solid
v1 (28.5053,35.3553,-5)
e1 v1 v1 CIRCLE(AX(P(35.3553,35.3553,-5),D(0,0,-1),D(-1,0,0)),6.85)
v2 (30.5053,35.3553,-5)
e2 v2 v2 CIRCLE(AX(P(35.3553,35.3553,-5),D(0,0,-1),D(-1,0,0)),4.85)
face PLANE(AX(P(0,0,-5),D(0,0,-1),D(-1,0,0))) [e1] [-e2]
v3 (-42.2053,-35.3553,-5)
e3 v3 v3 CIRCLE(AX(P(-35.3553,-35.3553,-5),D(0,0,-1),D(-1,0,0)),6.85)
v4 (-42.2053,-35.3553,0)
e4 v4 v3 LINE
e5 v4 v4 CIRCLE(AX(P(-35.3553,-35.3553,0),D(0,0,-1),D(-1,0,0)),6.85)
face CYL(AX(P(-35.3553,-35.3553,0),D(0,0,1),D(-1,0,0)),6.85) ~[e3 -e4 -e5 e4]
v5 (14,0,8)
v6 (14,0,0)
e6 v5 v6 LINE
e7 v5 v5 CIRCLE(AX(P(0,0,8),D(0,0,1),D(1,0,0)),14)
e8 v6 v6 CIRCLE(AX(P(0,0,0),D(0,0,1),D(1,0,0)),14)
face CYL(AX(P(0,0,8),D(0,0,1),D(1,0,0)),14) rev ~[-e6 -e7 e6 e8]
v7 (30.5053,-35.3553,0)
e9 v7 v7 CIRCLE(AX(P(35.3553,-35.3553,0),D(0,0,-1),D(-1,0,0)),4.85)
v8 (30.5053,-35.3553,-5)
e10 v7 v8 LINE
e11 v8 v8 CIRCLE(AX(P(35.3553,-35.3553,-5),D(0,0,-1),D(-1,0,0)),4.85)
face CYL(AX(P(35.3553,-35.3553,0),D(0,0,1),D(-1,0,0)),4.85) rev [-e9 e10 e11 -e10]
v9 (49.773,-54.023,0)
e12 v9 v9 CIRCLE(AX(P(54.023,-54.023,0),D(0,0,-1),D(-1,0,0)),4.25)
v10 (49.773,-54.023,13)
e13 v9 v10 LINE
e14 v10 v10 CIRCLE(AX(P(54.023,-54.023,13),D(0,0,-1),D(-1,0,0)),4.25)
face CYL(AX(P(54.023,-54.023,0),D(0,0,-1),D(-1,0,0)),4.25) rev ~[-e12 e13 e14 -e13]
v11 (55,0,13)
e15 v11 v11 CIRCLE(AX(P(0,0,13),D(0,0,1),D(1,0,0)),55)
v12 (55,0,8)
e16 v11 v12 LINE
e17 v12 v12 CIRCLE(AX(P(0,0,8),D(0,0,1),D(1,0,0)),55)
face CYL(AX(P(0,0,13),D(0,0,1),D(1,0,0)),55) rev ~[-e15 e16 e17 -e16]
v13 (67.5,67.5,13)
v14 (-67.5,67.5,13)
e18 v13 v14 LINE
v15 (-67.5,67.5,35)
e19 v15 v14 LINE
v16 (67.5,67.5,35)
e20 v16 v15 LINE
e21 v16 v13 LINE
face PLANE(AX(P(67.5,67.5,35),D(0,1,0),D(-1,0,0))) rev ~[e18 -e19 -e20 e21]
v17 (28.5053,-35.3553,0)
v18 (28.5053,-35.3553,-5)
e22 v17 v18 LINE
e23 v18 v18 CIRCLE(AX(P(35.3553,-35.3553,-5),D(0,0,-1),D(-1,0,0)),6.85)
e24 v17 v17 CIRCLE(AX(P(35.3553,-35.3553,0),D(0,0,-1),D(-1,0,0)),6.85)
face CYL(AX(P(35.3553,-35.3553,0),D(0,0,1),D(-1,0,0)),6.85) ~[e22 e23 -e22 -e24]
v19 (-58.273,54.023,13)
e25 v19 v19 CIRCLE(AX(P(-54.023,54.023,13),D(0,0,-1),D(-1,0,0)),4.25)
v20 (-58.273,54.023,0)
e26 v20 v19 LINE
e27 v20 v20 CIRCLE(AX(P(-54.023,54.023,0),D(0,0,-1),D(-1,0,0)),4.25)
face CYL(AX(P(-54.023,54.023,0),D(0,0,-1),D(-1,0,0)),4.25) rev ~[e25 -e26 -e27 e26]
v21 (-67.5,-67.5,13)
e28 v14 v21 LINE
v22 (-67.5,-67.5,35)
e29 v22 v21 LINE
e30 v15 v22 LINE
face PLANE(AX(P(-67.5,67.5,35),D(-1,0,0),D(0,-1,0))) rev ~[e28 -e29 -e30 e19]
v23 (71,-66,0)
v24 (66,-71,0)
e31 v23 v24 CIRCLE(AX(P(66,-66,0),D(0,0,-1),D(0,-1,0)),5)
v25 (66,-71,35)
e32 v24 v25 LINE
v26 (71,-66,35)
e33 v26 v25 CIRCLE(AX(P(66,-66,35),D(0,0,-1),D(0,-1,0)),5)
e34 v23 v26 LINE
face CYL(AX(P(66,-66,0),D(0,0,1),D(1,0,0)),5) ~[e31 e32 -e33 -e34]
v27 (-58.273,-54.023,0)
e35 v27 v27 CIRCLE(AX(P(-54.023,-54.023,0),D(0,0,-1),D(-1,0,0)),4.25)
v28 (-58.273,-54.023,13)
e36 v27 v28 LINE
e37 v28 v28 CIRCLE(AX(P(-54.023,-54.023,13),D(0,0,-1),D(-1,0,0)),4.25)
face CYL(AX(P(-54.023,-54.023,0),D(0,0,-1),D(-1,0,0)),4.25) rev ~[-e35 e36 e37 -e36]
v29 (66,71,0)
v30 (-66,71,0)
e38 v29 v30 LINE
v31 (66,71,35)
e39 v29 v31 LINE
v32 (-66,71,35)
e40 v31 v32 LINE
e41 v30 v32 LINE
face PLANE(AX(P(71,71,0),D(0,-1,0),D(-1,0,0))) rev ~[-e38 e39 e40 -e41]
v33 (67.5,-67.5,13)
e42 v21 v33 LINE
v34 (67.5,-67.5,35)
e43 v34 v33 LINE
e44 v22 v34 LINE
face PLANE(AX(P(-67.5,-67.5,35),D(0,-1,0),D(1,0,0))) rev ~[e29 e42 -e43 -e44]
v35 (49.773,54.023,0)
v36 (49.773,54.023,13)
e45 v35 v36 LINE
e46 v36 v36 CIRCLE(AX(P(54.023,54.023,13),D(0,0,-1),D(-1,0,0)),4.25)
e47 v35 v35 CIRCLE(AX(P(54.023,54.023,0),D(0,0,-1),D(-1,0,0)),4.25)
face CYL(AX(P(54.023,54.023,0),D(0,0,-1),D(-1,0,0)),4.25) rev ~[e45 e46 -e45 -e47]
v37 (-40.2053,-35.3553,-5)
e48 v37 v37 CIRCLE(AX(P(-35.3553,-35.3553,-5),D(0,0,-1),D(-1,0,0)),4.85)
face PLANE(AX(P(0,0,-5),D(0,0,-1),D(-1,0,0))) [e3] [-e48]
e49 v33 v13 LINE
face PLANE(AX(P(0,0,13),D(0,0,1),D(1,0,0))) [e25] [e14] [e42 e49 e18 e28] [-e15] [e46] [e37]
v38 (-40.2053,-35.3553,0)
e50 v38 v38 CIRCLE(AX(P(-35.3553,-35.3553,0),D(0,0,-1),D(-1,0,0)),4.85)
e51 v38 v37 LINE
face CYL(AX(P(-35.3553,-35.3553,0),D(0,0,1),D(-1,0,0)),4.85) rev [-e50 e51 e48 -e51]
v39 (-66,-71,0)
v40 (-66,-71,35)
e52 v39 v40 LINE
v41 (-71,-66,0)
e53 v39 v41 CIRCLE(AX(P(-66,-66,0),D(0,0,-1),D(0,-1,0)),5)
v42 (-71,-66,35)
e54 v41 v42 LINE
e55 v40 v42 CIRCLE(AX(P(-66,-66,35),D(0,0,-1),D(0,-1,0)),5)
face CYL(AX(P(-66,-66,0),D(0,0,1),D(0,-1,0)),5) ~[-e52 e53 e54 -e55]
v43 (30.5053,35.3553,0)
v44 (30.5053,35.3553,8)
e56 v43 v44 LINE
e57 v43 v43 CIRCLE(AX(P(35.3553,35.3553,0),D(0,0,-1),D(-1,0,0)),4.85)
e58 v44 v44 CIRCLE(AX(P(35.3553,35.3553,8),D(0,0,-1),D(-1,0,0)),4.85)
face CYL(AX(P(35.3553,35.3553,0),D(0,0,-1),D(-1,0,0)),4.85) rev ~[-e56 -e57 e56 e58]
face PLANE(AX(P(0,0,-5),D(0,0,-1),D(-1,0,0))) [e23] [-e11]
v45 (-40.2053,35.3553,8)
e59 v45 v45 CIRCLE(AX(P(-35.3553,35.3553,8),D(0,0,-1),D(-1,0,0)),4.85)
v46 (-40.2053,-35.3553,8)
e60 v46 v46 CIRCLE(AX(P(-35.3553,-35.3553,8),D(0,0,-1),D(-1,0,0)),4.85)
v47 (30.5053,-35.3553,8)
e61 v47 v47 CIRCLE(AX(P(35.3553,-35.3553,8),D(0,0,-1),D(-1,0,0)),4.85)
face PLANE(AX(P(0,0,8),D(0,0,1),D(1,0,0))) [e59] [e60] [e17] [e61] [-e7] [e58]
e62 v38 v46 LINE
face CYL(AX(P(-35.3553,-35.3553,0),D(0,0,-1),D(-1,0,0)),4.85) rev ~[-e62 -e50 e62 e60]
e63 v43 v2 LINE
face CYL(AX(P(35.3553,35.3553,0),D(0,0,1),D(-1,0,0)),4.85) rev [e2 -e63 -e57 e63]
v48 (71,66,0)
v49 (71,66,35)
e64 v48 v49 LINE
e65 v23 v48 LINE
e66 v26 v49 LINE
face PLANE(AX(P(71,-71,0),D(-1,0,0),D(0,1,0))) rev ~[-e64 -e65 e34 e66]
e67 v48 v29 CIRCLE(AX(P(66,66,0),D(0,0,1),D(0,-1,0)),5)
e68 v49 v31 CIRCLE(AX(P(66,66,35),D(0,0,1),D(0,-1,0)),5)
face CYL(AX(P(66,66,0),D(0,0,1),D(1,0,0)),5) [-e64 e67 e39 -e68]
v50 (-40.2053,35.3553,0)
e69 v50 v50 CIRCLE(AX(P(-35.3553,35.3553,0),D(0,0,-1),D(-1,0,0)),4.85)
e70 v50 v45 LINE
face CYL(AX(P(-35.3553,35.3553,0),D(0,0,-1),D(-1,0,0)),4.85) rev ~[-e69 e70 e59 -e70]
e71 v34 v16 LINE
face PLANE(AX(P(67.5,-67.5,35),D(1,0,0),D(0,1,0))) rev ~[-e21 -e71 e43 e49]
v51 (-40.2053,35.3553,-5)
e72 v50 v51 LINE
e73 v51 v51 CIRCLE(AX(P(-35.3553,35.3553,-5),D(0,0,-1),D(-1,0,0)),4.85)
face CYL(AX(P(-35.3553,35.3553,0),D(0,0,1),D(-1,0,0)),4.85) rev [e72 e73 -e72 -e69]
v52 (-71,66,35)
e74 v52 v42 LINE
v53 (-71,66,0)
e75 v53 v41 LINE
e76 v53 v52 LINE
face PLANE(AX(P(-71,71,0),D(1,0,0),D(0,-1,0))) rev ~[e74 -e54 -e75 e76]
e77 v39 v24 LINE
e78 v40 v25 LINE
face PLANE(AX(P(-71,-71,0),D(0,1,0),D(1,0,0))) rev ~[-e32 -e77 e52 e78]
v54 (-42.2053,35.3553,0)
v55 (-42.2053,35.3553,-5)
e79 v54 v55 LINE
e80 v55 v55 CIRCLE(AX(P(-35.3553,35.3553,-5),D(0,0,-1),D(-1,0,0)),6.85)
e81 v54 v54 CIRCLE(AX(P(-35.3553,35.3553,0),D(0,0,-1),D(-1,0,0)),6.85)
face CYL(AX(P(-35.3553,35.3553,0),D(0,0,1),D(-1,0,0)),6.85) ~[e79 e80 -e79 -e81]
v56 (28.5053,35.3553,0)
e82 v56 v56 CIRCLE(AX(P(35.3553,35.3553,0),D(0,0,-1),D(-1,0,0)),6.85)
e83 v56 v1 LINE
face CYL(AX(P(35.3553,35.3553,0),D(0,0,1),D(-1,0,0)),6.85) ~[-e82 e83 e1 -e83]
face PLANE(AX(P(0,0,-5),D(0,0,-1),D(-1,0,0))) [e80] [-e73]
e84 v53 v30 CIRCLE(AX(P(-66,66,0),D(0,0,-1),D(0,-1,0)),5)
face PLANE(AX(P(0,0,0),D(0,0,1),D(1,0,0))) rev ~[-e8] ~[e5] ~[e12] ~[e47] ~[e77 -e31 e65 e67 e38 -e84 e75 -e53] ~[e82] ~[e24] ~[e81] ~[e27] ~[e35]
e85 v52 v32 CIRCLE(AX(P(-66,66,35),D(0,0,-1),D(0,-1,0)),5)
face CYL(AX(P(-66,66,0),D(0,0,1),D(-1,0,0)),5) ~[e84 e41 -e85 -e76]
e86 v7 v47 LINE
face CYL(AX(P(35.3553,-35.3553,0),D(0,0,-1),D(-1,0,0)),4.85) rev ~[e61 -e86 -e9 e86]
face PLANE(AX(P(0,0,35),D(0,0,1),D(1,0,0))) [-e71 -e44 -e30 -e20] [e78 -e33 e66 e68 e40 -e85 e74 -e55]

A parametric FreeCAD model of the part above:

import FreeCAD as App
import Part
import Sketcher


def edges_at(feature, points):
    """Names of the edges that pass closest to the given points."""
    edges = feature.Shape.Edges
    near = lambda p: min(range(len(edges)), key=lambda i: edges[i].distToShape(Part.Vertex(*p))[0])
    return sorted({f"Edge{near(p) + 1}" for p in points})

doc = App.newDocument("Part")
body = doc.addObject("PartDesign::Body", "Body")

sketch1 = body.newObject("Sketcher::SketchObject", "Sketch")
sketch1.AttachmentSupport = (doc.getObject("XY_Plane"), [""])
sketch1.MapMode = "FlatFace"
sketch1.addGeometry([
    Part.LineSegment(App.Vector(71, -71, 0), App.Vector(71, 71, 0)),
    Part.LineSegment(App.Vector(71, 71, 0), App.Vector(-71, 71, 0)),
    Part.LineSegment(App.Vector(-71, 71, 0), App.Vector(-71, -71, 0)),
    Part.LineSegment(App.Vector(-71, -71, 0), App.Vector(71, -71, 0)),
], False)
sketch1.addConstraint([
    Sketcher.Constraint("Coincident", 0, 2, 1, 1),
    Sketcher.Constraint("Coincident", 1, 2, 2, 1),
    Sketcher.Constraint("Coincident", 2, 2, 3, 1),
    Sketcher.Constraint("Coincident", 3, 2, 0, 1),
    Sketcher.Constraint("Vertical", 0),
    Sketcher.Constraint("Horizontal", 1),
    Sketcher.Constraint("Vertical", 2),
    Sketcher.Constraint("Horizontal", 3),
    Sketcher.Constraint("Symmetric", 0, 2, 2, 2, -1, 1),
    Sketcher.Constraint("Equal", 3, 0),
    Sketcher.Constraint("DistanceX", 1, 2, 1, 1, 142.0),
])
pad1 = body.newObject("PartDesign::Pad", "Pad")
pad1.Profile = sketch1
pad1.Length = 35
doc.recompute()

fillet = body.newObject("PartDesign::Fillet", "Fillet")
fillet.Base = (pad1, edges_at(pad1, [
    (-71, -71, 17.5),
    (-71, 71, 17.5),
    (71, 71, 17.5),
    (71, -71, 17.5),
]))
fillet.Radius = 5

sketch2 = body.newObject("Sketcher::SketchObject", "Sketch001")
sketch2.AttachmentSupport = (doc.getObject("XY_Plane"), [""])
sketch2.MapMode = "FlatFace"
sketch2.AttachmentOffset = App.Placement(App.Vector(0, 0, 35), App.Rotation())
sketch2.addGeometry([
    Part.LineSegment(App.Vector(-67.5, 67.5, 0), App.Vector(-67.5, -67.5, 0)),
    Part.LineSegment(App.Vector(-67.5, -67.5, 0), App.Vector(67.5, -67.5, 0)),
    Part.LineSegment(App.Vector(67.5, -67.5, 0), App.Vector(67.5, 67.5, 0)),
    Part.LineSegment(App.Vector(67.5, 67.5, 0), App.Vector(-67.5, 67.5, 0)),
], False)
sketch2.addConstraint([
    Sketcher.Constraint("Coincident", 0, 2, 1, 1),
    Sketcher.Constraint("Coincident", 1, 2, 2, 1),
    Sketcher.Constraint("Coincident", 2, 2, 3, 1),
    Sketcher.Constraint("Coincident", 3, 2, 0, 1),
    Sketcher.Constraint("Vertical", 0),
    Sketcher.Constraint("Horizontal", 1),
    Sketcher.Constraint("Vertical", 2),
    Sketcher.Constraint("Horizontal", 3),
    Sketcher.Constraint("Symmetric", 0, 2, 2, 2, -1, 1),
    Sketcher.Constraint("Equal", 3, 0),
    Sketcher.Constraint("DistanceX", 1, 1, 1, 2, 135.0),
])
pocket1 = body.newObject("PartDesign::Pocket", "Pocket")
pocket1.Profile = sketch2
pocket1.Length = 22

sketch3 = body.newObject("Sketcher::SketchObject", "Sketch002")
sketch3.AttachmentSupport = (doc.getObject("XY_Plane"), [""])
sketch3.MapMode = "FlatFace"
sketch3.AttachmentOffset = App.Placement(App.Vector(0, 0, 13), App.Rotation())
sketch3.addGeometry(Part.Circle(App.Vector(0, 0, 0), App.Vector(0, 0, 1), 55), False)
sketch3.addConstraint([
    Sketcher.Constraint("Coincident", 0, 3, -1, 1),
    Sketcher.Constraint("Diameter", 0, 110.0),
])
pocket2 = body.newObject("PartDesign::Pocket", "Pocket001")
pocket2.Profile = sketch3
pocket2.Length = 5

sketch4 = body.newObject("Sketcher::SketchObject", "Sketch003")
sketch4.AttachmentSupport = (doc.getObject("XY_Plane"), [""])
sketch4.MapMode = "FlatFace"
sketch4.AttachmentOffset = App.Placement(App.Vector(0, 0, 8), App.Rotation())
sketch4.addGeometry(Part.Circle(App.Vector(0, 0, 0), App.Vector(0, 0, 1), 14), False)
sketch4.addConstraint([
    Sketcher.Constraint("Coincident", 0, 3, -1, 1),
    Sketcher.Constraint("Diameter", 0, 28.0),
])
pocket3 = body.newObject("PartDesign::Pocket", "Pocket002")
pocket3.Profile = sketch4
pocket3.Type = "ThroughAll"

sketch5 = body.newObject("Sketcher::SketchObject", "Sketch004")
sketch5.AttachmentSupport = (doc.getObject("XY_Plane"), [""])
sketch5.MapMode = "FlatFace"
sketch5.addGeometry([
    Part.Circle(App.Vector(-54.023, -54.023, 0), App.Vector(0, 0, 1), 4.25),
    Part.Circle(App.Vector(54.023, -54.023, 0), App.Vector(0, 0, 1), 4.25),
    Part.Circle(App.Vector(-54.023, 54.023, 0), App.Vector(0, 0, 1), 4.25),
    Part.Circle(App.Vector(54.023, 54.023, 0), App.Vector(0, 0, 1), 4.25),
    Part.Circle(App.Vector(-35.3553, -35.3553, 0), App.Vector(0, 0, 1), 4.85),
    Part.Circle(App.Vector(35.3553, -35.3553, 0), App.Vector(0, 0, 1), 4.85),
    Part.Circle(App.Vector(-35.3553, 35.3553, 0), App.Vector(0, 0, 1), 4.85),
    Part.Circle(App.Vector(35.3553, 35.3553, 0), App.Vector(0, 0, 1), 4.85),
], False)
sketch5.addConstraint([
    Sketcher.Constraint("Equal", 0, 1),
    Sketcher.Constraint("Equal", 1, 2),
    Sketcher.Constraint("Equal", 2, 3),
    Sketcher.Constraint("Equal", 4, 5),
    Sketcher.Constraint("Equal", 5, 6),
    Sketcher.Constraint("Equal", 6, 7),
    Sketcher.Constraint("Symmetric", 1, 3, 2, 3, -1, 1),
    Sketcher.Constraint("Symmetric", 0, 3, 3, 3, -1, 1),
    Sketcher.Constraint("Symmetric", 5, 3, 6, 3, -1, 1),
    Sketcher.Constraint("Symmetric", 4, 3, 7, 3, -1, 1),
    Sketcher.Constraint("Symmetric", 0, 3, 1, 3, -2),
    Sketcher.Constraint("Symmetric", 4, 3, 5, 3, -2),
    Sketcher.Constraint("Diameter", 0, 8.5),
    Sketcher.Constraint("Diameter", 4, 9.7),
    Sketcher.Constraint("DistanceX", 0, 3, -1, 1, 54.023),
    Sketcher.Constraint("DistanceY", 0, 3, -1, 1, 54.023),
    Sketcher.Constraint("DistanceX", 4, 3, -1, 1, 35.3553),
    Sketcher.Constraint("DistanceY", 4, 3, -1, 1, 35.3553),
])
pocket4 = body.newObject("PartDesign::Pocket", "Pocket003")
pocket4.Profile = sketch5
pocket4.Type = "ThroughAll"
pocket4.Reversed = True

sketch6 = body.newObject("Sketcher::SketchObject", "Sketch005")
sketch6.AttachmentSupport = (doc.getObject("XY_Plane"), [""])
sketch6.MapMode = "FlatFace"
sketch6.addGeometry([
    Part.Circle(App.Vector(-35.3553, -35.3553, 0), App.Vector(0, 0, 1), 6.85),
    Part.Circle(App.Vector(-35.3553, -35.3553, 0), App.Vector(0, 0, 1), 4.85),
    Part.Circle(App.Vector(35.3553, -35.3553, 0), App.Vector(0, 0, 1), 6.85),
    Part.Circle(App.Vector(35.3553, -35.3553, 0), App.Vector(0, 0, 1), 4.85),
    Part.Circle(App.Vector(35.3553, 35.3553, 0), App.Vector(0, 0, 1), 6.85),
    Part.Circle(App.Vector(35.3553, 35.3553, 0), App.Vector(0, 0, 1), 4.85),
    Part.Circle(App.Vector(-35.3553, 35.3553, 0), App.Vector(0, 0, 1), 6.85),
    Part.Circle(App.Vector(-35.3553, 35.3553, 0), App.Vector(0, 0, 1), 4.85),
], False)
sketch6.addConstraint([
    Sketcher.Constraint("Coincident", 1, 3, 0, 3),
    Sketcher.Constraint("Coincident", 3, 3, 2, 3),
    Sketcher.Constraint("Coincident", 5, 3, 4, 3),
    Sketcher.Constraint("Coincident", 7, 3, 6, 3),
    Sketcher.Constraint("Equal", 0, 2),
    Sketcher.Constraint("Equal", 1, 3),
    Sketcher.Constraint("Equal", 2, 4),
    Sketcher.Constraint("Equal", 3, 5),
    Sketcher.Constraint("Equal", 4, 6),
    Sketcher.Constraint("Equal", 5, 7),
    Sketcher.Constraint("Symmetric", 0, 3, 4, 3, -1, 1),
    Sketcher.Constraint("Symmetric", 2, 3, 6, 3, -1, 1),
    Sketcher.Constraint("Symmetric", 0, 3, 2, 3, -2),
    Sketcher.Constraint("Diameter", 0, 13.7),
    Sketcher.Constraint("Diameter", 1, 9.7),
    Sketcher.Constraint("DistanceX", 0, 3, -1, 1, 35.3553),
    Sketcher.Constraint("DistanceY", 0, 3, -1, 1, 35.3553),
])
pad2 = body.newObject("PartDesign::Pad", "Pad001")
pad2.Profile = sketch6
pad2.Length = 5
pad2.Reversed = True

doc.recompute()
